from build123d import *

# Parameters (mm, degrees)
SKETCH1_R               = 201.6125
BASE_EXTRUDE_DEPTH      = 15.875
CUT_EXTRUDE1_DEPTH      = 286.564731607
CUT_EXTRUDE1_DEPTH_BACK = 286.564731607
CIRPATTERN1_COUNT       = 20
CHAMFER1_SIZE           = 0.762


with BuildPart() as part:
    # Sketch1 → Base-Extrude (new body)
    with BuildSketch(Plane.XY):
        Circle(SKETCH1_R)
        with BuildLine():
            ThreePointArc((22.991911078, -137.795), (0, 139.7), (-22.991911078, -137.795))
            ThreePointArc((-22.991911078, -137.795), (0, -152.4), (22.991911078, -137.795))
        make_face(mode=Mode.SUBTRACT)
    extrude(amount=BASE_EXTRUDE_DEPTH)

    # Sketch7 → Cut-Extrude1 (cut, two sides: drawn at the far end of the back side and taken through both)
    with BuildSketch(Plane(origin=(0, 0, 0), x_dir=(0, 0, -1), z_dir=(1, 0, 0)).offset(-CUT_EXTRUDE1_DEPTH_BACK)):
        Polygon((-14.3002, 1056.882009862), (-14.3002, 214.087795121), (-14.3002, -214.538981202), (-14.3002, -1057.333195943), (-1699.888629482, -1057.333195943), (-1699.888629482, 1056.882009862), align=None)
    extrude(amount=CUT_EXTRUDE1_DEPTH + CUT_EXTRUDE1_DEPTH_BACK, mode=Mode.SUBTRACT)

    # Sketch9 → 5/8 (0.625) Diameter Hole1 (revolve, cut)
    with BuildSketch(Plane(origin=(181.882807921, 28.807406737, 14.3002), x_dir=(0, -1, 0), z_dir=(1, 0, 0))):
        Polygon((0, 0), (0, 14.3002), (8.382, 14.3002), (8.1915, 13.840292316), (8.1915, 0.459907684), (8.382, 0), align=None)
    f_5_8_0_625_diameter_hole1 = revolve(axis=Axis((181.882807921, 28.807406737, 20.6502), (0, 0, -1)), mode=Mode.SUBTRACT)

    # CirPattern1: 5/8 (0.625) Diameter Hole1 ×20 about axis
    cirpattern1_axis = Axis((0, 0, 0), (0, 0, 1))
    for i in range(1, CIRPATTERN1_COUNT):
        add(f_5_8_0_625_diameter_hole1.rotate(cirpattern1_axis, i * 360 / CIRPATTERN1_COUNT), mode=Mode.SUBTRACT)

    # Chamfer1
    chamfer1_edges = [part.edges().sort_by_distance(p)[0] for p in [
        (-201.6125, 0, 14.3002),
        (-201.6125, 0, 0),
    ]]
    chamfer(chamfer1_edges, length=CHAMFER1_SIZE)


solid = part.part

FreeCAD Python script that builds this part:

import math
import FreeCAD as App
import Part
import Sketcher

V = App.Vector
Q = App.Units.Quantity


def edges_at(feature, points):
    """Names of the edges that pass closest to the given points."""
    edges = feature.Shape.Edges
    near = lambda p: min(range(len(edges)), key=lambda i: edges[i].distToShape(Part.Vertex(*p))[0])
    return sorted({f"Edge{near(p) + 1}" for p in points})


def add_polygon(sketch, points):
    """Adds a closed chain of lines whose ends are joined by coincident constraints."""
    first, n = sketch.GeometryCount, len(points)
    for a, b in zip(points, points[1:] + points[:1]):
        sketch.addGeometry(Part.LineSegment(App.Vector(*a, 0), App.Vector(*b, 0)), False)
    for i in range(n):
        sketch.addConstraint(Sketcher.Constraint("Coincident", first + i, 2, first + (i + 1) % n, 1))

doc = App.newDocument("Part")
params = doc.addObject("Spreadsheet::Sheet", "Params")
for row, (alias, value) in enumerate([
    ("sketch1_radius", "1 in"),
    ("sketch1_radius2", "5.5 in"),
    ("sketch1_diameter", "15.875 in"),
    ("pad1_length", "0.625 in"),
    ("sketch3_width", "0.33 in"),
    ("sketch3_height", "0.563 in"),
    ("groove_angle", "360 deg"),
    ("chamfer_size", "0.03 in"),
], start=1):
    params.set(f"A{row}", alias)
    params.set(f"B{row}", "=" + value)
    params.setAlias(f"B{row}", alias)

body = doc.addObject("PartDesign::Body", "Body")

sketch1 = body.newObject("Sketcher::SketchObject", "Sketch")
sketch1.AttachmentSupport = (doc.getObject("XY_Plane"), [""])
sketch1.MapMode = "FlatFace"
sketch1.addGeometry(Part.Circle(V(0, 0, 0), V(0, 0, 1), 202), False)
sketch1.addGeometry(Part.ArcOfCircle(Part.Circle(V(0, 0, 0), V(0, 0, 1), 140), math.radians(-81), math.radians(261)), False)
sketch1.addGeometry(Part.ArcOfCircle(Part.Circle(V(0, -127, 0), V(0, 0, 1), 25), math.radians(-155), math.radians(-25)), False)
sketch1.addConstraint(Sketcher.Constraint("Coincident", 1, 1, 2, 2))
sketch1.addConstraint(Sketcher.Constraint("Coincident", 2, 1, 1, 2))
sketch1.addConstraint(Sketcher.Constraint("Coincident", 0, 3, -1, 1))
sketch1.addConstraint(Sketcher.Constraint("Coincident", 1, 3, -1, 1))
sketch1.addConstraint(Sketcher.Constraint("PointOnObject", 2, 3, -2))
sketch1.addConstraint(Sketcher.Constraint("Radius", 2, Q("1 in")))
sketch1.addConstraint(Sketcher.Constraint("Radius", 1, Q("5.5 in")))
sketch1.addConstraint(Sketcher.Constraint("Diameter", 0, Q("15.875 in")))
sketch1.addConstraint(Sketcher.Constraint("DistanceY", 2, 3, -1, 1, Q("5 in")))
sketch1.setExpression("Constraints[5]", "Params.sketch1_radius")
sketch1.setExpression("Constraints[6]", "Params.sketch1_radius2")
sketch1.setExpression("Constraints[7]", "Params.sketch1_diameter")
pad1 = body.newObject("PartDesign::Pad", "Pad")
pad1.Profile = sketch1
pad1.setExpression("Length", "Params.pad1_length")

sketch2 = body.newObject("Sketcher::SketchObject", "Sketch001")
sketch2.AttachmentSupport = (doc.getObject("YZ_Plane"), [""])
sketch2.MapMode = "FlatFace"
add_polygon(sketch2, [(-1057, 14), (1057, 14), (1057, 1700), (-1057, 1700)])
sketch2.addConstraint(Sketcher.Constraint("Horizontal", 0))
sketch2.addConstraint(Sketcher.Constraint("Vertical", 1))
sketch2.addConstraint(Sketcher.Constraint("Horizontal", 2))
sketch2.addConstraint(Sketcher.Constraint("Vertical", 3))
sketch2.addConstraint(Sketcher.Constraint("DistanceY", -1, 1, 0, 2, Q("0.563 in")))
sketch2.addConstraint(Sketcher.Constraint("DistanceY", 1, 1, 1, 2, Q("1685.588429 mm")))
sketch2.addConstraint(Sketcher.Constraint("DistanceX", 0, 1, 0, 2, Q("2114.215206 mm")))
sketch2.addConstraint(Sketcher.Constraint("DistanceX", -1, 1, 0, 2, Q("1056.88201 mm")))
pocket1 = body.newObject("PartDesign::Pocket", "Pocket")
pocket1.Profile = sketch2
pocket1.Type = "ThroughAll"
pocket1.Midplane = True

sketch3 = body.newObject("Sketcher::SketchObject", "Sketch002")
sketch3.AttachmentSupport = (doc.getObject("YZ_Plane"), [""])
sketch3.MapMode = "FlatFace"
sketch3.AttachmentOffset = App.Placement(V(0, 0, 181.882808), App.Rotation())
add_polygon(sketch3, [(28.81, 0), (28.81, 14.3), (20.43, 14.3), (20.62, 13.84), (20.62, 0.46), (20.43, 0)])
sketch3.addGeometry(Part.LineSegment(V(28.81, 14.3, 0), V(28.81, 0, 0)), True)
sketch3.addConstraint(Sketcher.Constraint("Vertical", 0))
sketch3.addConstraint(Sketcher.Constraint("Horizontal", 1))
sketch3.addConstraint(Sketcher.Constraint("Vertical", 3))
sketch3.addConstraint(Sketcher.Constraint("Horizontal", 5))
sketch3.addConstraint(Sketcher.Constraint("Vertical", 6))
sketch3.addConstraint(Sketcher.Constraint("Coincident", 6, 1, 0, 2))
sketch3.addConstraint(Sketcher.Constraint("PointOnObject", 4, 2, -1))
sketch3.addConstraint(Sketcher.Constraint("PointOnObject", 6, 2, -1))
sketch3.addConstraint(Sketcher.Constraint("Vertical", 1, 2, 4, 2))
sketch3.addConstraint(Sketcher.Constraint("Equal", 2, 4))
sketch3.addConstraint(Sketcher.Constraint("DistanceX", 1, 2, 1, 1, Q("0.33 in")))
sketch3.addConstraint(Sketcher.Constraint("Angle", 2, Q("-67.5 deg")))
sketch3.addConstraint(Sketcher.Constraint("DistanceY", 0, 1, 0, 2, Q("0.563 in")))
sketch3.addConstraint(Sketcher.Constraint("DistanceX", 1, 2, 2, 2, Q("0.0075 in")))
sketch3.addConstraint(Sketcher.Constraint("DistanceX", -1, 1, 0, 2, Q("28.807407 mm")))
sketch3.setExpression("Constraints[16]", "Params.sketch3_width")
sketch3.setExpression("Constraints[18]", "Params.sketch3_height")
groove = body.newObject("PartDesign::Groove", "Groove")
groove.Profile = sketch3
groove.ReferenceAxis = (sketch3, ["Axis0"])
groove.setExpression("Angle", "Params.groove_angle")
doc.recompute()

polarpattern = body.newObject("PartDesign::PolarPattern", "PolarPattern")
polarpattern.Originals = [groove]
polarpattern.Axis = (doc.getObject("Z_Axis"), [""])
polarpattern.Angle = 360
polarpattern.Occurrences = 20
body.Tip = polarpattern
doc.recompute()

chamfer = body.newObject("PartDesign::Chamfer", "Chamfer")
chamfer.Base = (polarpattern, edges_at(polarpattern, [(-201.613, 0, 14.3), (-201.613, 0, 0)]))
chamfer.setExpression("Size", "Params.chamfer_size")

doc.recompute()
